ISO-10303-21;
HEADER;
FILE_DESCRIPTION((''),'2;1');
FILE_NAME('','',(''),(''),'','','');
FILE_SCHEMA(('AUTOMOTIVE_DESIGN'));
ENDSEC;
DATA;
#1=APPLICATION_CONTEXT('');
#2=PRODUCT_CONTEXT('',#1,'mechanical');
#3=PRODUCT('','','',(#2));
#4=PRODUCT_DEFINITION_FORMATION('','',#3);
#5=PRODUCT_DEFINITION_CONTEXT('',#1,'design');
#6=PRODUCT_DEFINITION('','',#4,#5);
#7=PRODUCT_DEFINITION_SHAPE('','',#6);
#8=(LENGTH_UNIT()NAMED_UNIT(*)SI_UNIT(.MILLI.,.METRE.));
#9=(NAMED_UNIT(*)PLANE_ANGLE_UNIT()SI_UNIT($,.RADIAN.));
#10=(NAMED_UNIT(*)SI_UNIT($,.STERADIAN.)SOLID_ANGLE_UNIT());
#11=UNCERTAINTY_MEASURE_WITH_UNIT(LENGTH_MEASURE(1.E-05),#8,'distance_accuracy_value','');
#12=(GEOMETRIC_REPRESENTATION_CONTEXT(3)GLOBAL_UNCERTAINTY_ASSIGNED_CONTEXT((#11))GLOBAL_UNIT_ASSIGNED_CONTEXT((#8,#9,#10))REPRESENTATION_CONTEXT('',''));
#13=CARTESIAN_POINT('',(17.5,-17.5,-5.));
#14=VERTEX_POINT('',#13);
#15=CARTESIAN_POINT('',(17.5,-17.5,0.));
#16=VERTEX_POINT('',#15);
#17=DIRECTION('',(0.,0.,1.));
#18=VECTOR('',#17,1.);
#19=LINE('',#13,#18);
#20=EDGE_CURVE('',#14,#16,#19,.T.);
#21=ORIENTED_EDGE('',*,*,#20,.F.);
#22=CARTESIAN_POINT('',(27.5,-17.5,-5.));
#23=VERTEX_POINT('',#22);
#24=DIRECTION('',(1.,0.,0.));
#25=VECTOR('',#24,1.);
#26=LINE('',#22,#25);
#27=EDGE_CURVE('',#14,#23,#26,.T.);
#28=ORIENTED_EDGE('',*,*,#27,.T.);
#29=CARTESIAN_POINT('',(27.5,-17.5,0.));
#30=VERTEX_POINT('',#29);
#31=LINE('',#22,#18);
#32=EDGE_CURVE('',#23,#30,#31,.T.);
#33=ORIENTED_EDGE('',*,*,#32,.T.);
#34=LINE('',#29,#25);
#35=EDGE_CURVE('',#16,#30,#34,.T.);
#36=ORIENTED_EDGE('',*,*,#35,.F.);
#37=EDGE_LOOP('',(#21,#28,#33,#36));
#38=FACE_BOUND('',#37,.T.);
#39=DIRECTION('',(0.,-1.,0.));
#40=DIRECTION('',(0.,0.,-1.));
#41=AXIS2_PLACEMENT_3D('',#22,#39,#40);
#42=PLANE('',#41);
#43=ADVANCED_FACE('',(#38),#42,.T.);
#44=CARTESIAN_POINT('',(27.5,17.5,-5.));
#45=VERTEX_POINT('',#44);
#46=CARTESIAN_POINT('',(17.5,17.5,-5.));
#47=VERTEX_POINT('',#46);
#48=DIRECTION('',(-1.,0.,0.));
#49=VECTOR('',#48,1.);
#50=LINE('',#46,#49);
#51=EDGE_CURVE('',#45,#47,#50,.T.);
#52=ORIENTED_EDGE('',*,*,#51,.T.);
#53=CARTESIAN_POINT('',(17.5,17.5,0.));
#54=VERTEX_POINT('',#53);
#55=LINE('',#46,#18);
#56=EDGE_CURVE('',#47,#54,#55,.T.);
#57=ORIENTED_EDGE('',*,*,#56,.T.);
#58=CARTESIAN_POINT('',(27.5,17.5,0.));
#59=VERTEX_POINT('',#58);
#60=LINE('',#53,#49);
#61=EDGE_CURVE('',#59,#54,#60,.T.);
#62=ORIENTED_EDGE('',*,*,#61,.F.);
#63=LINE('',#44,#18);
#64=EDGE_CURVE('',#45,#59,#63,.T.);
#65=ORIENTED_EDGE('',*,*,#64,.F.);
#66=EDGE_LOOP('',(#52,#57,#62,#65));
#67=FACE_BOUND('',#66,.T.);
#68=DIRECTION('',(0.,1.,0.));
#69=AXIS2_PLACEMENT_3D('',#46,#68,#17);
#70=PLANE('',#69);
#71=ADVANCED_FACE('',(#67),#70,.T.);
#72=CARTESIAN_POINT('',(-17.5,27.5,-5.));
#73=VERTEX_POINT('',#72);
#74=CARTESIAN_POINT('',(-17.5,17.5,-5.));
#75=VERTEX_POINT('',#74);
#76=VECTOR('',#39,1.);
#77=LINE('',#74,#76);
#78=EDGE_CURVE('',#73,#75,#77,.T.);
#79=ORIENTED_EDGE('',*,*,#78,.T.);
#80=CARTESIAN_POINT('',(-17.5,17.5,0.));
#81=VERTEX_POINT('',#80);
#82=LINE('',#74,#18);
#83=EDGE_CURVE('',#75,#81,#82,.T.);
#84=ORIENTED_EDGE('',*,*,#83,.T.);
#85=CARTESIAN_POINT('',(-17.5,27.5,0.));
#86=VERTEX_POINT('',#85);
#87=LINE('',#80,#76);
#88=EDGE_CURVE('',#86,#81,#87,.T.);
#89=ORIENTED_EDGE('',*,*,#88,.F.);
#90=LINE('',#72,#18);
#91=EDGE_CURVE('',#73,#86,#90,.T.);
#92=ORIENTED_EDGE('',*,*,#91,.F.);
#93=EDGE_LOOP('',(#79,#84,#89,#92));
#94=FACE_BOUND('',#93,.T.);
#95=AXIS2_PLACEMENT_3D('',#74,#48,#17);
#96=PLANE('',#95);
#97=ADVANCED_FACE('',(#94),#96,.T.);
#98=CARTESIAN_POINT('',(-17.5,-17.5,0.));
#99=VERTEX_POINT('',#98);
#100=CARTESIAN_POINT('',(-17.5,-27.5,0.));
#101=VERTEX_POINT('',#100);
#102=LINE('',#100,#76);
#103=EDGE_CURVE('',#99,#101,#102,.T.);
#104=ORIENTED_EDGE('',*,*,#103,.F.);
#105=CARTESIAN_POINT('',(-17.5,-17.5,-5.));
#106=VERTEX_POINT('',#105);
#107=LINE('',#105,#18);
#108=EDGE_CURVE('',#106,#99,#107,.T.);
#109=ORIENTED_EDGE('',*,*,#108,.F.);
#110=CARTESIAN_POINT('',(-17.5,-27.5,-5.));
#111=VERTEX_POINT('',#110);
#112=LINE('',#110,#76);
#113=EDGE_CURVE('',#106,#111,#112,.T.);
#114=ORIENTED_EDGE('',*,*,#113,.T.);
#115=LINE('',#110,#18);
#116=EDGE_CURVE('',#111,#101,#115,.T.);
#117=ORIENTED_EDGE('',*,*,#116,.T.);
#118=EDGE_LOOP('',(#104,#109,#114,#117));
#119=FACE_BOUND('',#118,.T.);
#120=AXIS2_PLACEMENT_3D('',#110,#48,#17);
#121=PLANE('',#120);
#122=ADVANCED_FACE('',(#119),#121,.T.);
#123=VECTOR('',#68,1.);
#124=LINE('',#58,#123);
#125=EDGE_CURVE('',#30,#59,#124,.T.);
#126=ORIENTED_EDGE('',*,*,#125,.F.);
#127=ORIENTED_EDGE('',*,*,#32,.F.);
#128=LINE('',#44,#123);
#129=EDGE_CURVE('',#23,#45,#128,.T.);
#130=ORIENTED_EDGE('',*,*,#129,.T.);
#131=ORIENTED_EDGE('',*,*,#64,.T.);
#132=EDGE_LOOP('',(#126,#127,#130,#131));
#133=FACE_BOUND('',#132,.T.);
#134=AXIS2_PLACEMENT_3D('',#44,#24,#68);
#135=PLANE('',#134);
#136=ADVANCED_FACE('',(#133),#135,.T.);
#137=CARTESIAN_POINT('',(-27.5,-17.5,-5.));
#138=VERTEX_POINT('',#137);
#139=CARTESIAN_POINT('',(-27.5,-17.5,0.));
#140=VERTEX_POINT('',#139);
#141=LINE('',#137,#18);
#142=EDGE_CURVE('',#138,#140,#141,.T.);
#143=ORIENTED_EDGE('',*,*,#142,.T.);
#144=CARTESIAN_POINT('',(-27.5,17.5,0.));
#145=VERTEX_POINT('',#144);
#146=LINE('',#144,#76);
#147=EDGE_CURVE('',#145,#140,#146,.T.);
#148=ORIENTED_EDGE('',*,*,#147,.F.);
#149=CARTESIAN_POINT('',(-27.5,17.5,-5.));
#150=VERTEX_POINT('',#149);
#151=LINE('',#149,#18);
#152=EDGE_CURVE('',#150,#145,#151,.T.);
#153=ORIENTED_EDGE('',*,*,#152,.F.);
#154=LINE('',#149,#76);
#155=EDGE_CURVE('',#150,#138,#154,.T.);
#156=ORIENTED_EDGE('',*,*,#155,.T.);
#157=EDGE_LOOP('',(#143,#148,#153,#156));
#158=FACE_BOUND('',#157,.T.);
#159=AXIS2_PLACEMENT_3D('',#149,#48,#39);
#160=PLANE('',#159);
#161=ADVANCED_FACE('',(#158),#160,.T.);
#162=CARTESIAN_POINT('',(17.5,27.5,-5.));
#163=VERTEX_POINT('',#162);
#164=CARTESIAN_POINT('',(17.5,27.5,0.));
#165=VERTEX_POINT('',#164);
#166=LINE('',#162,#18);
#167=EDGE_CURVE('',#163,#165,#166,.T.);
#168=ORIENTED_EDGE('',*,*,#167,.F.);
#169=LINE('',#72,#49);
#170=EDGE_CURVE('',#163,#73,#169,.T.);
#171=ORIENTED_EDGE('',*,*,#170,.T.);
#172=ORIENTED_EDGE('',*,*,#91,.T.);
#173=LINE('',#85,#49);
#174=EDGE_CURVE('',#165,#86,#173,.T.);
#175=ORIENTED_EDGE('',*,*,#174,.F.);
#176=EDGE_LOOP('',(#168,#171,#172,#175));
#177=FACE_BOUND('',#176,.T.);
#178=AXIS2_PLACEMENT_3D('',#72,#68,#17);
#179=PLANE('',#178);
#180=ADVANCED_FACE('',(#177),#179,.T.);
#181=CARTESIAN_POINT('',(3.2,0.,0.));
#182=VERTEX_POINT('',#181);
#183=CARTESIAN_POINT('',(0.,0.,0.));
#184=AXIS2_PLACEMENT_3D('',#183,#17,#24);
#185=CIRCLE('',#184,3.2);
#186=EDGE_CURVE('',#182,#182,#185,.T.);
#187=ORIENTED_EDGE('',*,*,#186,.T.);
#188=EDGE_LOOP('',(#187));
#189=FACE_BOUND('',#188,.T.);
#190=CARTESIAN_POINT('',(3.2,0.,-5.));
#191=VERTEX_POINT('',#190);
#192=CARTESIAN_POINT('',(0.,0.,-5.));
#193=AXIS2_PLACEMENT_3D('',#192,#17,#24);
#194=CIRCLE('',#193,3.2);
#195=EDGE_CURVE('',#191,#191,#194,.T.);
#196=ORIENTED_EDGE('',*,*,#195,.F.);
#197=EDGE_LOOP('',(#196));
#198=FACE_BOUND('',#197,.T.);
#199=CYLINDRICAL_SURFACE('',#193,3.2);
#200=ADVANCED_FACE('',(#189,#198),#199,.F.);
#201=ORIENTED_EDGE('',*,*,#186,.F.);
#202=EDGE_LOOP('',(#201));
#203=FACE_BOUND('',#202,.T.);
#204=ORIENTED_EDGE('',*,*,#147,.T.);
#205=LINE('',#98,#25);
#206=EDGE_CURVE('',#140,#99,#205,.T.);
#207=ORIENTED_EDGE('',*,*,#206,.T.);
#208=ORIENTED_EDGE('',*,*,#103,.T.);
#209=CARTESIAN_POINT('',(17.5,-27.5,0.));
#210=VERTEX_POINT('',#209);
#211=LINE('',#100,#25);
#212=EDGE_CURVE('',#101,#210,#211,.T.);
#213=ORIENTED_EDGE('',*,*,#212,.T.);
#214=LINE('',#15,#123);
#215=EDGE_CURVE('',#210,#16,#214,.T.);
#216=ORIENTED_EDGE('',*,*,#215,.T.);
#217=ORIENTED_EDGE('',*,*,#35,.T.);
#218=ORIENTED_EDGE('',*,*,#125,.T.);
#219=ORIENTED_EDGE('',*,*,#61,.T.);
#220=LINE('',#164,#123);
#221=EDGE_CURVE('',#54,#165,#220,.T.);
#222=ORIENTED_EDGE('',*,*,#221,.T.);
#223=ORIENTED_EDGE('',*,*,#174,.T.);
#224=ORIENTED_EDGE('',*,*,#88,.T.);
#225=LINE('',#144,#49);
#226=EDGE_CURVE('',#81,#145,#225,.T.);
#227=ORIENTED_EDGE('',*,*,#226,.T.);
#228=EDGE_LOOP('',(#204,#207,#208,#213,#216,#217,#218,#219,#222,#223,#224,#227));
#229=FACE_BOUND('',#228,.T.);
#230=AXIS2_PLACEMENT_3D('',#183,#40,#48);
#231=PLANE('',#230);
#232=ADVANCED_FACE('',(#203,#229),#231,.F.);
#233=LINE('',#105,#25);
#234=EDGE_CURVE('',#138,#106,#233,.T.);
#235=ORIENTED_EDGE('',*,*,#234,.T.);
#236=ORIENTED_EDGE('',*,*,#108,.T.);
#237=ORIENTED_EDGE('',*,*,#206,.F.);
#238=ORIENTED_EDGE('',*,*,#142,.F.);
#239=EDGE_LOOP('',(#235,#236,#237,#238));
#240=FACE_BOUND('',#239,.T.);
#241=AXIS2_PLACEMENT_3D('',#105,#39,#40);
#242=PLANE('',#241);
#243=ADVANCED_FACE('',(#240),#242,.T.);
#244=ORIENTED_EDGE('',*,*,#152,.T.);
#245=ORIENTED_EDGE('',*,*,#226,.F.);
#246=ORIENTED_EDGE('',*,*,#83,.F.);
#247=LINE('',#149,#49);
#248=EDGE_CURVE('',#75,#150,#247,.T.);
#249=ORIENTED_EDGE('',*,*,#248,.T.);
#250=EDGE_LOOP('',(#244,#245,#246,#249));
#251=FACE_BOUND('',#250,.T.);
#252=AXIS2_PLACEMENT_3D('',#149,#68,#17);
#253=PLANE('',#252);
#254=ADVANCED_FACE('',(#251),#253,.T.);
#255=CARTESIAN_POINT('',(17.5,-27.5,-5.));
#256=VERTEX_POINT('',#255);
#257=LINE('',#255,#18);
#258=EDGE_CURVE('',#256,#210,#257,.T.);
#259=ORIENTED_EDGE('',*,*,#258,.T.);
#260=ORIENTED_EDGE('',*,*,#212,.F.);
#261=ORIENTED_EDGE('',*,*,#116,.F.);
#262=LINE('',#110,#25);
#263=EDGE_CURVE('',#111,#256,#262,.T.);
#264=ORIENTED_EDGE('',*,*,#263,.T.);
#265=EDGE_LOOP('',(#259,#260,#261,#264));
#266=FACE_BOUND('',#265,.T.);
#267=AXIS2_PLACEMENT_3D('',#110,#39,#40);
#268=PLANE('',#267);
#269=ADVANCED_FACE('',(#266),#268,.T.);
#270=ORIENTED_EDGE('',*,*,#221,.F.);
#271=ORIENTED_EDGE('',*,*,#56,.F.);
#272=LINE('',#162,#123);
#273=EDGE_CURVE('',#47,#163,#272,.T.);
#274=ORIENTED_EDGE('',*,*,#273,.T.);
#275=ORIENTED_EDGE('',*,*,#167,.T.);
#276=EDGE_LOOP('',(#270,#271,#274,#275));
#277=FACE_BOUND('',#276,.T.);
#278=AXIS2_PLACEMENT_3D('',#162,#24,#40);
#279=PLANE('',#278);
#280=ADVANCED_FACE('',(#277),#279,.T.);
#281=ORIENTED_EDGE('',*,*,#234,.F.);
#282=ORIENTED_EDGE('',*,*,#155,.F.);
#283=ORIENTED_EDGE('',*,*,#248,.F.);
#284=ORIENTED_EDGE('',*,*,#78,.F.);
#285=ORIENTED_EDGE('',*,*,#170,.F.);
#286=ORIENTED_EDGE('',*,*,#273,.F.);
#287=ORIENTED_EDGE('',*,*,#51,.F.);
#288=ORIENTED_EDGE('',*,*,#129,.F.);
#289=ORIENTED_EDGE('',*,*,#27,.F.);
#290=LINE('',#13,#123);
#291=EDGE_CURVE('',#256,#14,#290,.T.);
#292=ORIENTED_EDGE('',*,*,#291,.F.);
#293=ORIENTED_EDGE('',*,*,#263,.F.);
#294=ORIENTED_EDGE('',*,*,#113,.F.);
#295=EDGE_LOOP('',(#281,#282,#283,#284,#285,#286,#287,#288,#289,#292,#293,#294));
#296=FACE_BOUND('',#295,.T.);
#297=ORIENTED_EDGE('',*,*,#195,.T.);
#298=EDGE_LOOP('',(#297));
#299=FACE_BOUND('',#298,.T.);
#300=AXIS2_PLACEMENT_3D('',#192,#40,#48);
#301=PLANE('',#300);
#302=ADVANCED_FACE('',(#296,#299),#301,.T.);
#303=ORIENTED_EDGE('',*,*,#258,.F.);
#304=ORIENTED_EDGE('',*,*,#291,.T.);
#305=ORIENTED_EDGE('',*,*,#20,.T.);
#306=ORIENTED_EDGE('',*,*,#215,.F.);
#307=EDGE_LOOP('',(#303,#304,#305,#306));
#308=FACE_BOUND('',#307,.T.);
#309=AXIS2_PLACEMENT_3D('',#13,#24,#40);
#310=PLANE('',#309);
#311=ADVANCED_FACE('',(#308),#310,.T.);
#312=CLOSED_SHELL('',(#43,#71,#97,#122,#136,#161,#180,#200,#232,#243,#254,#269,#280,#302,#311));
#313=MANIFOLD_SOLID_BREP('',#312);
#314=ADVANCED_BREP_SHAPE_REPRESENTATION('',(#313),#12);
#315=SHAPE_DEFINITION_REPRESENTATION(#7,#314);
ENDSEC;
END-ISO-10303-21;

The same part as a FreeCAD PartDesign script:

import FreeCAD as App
import Part
import Sketcher

V = App.Vector


def add_polygon(sketch, points):
    """Adds a closed chain of lines whose ends are joined by coincident constraints."""
    first, n = sketch.GeometryCount, len(points)
    for a, b in zip(points, points[1:] + points[:1]):
        sketch.addGeometry(Part.LineSegment(App.Vector(*a, 0), App.Vector(*b, 0)), False)
    for i in range(n):
        sketch.addConstraint(Sketcher.Constraint("Coincident", first + i, 2, first + (i + 1) % n, 1))

doc = App.newDocument("Part")
params = doc.addObject("Spreadsheet::Sheet", "Params")
for row, (alias, value) in enumerate([
    ("sketch1_diameter", "6.4 mm"),
    ("sketch1_width", "35 mm"),
    ("sketch1_width2", "10 mm"),
    ("pad1_length", "5 mm"),
], start=1):
    params.set(f"A{row}", alias)
    params.set(f"B{row}", "=" + value)
    params.setAlias(f"B{row}", alias)

body = doc.addObject("PartDesign::Body", "Body")

# Sketch on XY plane
sketch1 = body.newObject("Sketcher::SketchObject", "Sketch")
sketch1.AttachmentSupport = (doc.getObject("XY_Plane"), [""])
sketch1.MapMode = "FlatFace"
add_polygon(sketch1, [(17.5, 27.5), (-17.5, 27.5), (-17.5, 17.5), (-27.5, 17.5), (-27.5, -17.5), (-17.5, -17.5), (-17.5, -27.5), (17.5, -27.5), (17.5, -17.5), (27.5, -17.5), (27.5, 17.5), (17.5, 17.5)])  # lines 0-11
sketch1.addGeometry(Part.Circle(V(0, 0, 0), V(0, 0, 1), 3.2), False)  # 12
sketch1.addConstraint(Sketcher.Constraint("Horizontal", 0))
sketch1.addConstraint(Sketcher.Constraint("Vertical", 1))
sketch1.addConstraint(Sketcher.Constraint("Horizontal", 2))
sketch1.addConstraint(Sketcher.Constraint("Vertical", 3))
sketch1.addConstraint(Sketcher.Constraint("Horizontal", 4))
sketch1.addConstraint(Sketcher.Constraint("Vertical", 5))
sketch1.addConstraint(Sketcher.Constraint("Horizontal", 6))
sketch1.addConstraint(Sketcher.Constraint("Vertical", 7))
sketch1.addConstraint(Sketcher.Constraint("Horizontal", 8))
sketch1.addConstraint(Sketcher.Constraint("Vertical", 9))
sketch1.addConstraint(Sketcher.Constraint("Horizontal", 10))
sketch1.addConstraint(Sketcher.Constraint("Vertical", 11))
sketch1.addConstraint(Sketcher.Constraint("Coincident", 12, 3, -1, 1))
sketch1.addConstraint(Sketcher.Constraint("Symmetric", 0, 2, 6, 2, -1, 1))
sketch1.addConstraint(Sketcher.Constraint("Symmetric", 2, 2, 8, 2, -1, 1))
sketch1.addConstraint(Sketcher.Constraint("Symmetric", 4, 2, 10, 2, -1, 1))
sketch1.addConstraint(Sketcher.Constraint("Symmetric", 4, 2, 7, 2, -2))
sketch1.addConstraint(Sketcher.Constraint("Equal", 10, 1))
sketch1.addConstraint(Sketcher.Constraint("Equal", 6, 3))
sketch1.addConstraint(Sketcher.Constraint("Diameter", 12, 6.4))
sketch1.addConstraint(Sketcher.Constraint("DistanceX", 0, 2, 0, 1, 35.0))
sketch1.addConstraint(Sketcher.Constraint("DistanceX", 2, 2, 2, 1, 10.0))
sketch1.setExpression("Constraints[31]", "Params.sketch1_diameter")
sketch1.setExpression("Constraints[32]", "Params.sketch1_width")
sketch1.setExpression("Constraints[33]", "Params.sketch1_width2")
pad1 = body.newObject("PartDesign::Pad", "Pad")
pad1.Profile = sketch1
pad1.setExpression("Length", "Params.pad1_length")
pad1.Reversed = True

doc.recompute()
